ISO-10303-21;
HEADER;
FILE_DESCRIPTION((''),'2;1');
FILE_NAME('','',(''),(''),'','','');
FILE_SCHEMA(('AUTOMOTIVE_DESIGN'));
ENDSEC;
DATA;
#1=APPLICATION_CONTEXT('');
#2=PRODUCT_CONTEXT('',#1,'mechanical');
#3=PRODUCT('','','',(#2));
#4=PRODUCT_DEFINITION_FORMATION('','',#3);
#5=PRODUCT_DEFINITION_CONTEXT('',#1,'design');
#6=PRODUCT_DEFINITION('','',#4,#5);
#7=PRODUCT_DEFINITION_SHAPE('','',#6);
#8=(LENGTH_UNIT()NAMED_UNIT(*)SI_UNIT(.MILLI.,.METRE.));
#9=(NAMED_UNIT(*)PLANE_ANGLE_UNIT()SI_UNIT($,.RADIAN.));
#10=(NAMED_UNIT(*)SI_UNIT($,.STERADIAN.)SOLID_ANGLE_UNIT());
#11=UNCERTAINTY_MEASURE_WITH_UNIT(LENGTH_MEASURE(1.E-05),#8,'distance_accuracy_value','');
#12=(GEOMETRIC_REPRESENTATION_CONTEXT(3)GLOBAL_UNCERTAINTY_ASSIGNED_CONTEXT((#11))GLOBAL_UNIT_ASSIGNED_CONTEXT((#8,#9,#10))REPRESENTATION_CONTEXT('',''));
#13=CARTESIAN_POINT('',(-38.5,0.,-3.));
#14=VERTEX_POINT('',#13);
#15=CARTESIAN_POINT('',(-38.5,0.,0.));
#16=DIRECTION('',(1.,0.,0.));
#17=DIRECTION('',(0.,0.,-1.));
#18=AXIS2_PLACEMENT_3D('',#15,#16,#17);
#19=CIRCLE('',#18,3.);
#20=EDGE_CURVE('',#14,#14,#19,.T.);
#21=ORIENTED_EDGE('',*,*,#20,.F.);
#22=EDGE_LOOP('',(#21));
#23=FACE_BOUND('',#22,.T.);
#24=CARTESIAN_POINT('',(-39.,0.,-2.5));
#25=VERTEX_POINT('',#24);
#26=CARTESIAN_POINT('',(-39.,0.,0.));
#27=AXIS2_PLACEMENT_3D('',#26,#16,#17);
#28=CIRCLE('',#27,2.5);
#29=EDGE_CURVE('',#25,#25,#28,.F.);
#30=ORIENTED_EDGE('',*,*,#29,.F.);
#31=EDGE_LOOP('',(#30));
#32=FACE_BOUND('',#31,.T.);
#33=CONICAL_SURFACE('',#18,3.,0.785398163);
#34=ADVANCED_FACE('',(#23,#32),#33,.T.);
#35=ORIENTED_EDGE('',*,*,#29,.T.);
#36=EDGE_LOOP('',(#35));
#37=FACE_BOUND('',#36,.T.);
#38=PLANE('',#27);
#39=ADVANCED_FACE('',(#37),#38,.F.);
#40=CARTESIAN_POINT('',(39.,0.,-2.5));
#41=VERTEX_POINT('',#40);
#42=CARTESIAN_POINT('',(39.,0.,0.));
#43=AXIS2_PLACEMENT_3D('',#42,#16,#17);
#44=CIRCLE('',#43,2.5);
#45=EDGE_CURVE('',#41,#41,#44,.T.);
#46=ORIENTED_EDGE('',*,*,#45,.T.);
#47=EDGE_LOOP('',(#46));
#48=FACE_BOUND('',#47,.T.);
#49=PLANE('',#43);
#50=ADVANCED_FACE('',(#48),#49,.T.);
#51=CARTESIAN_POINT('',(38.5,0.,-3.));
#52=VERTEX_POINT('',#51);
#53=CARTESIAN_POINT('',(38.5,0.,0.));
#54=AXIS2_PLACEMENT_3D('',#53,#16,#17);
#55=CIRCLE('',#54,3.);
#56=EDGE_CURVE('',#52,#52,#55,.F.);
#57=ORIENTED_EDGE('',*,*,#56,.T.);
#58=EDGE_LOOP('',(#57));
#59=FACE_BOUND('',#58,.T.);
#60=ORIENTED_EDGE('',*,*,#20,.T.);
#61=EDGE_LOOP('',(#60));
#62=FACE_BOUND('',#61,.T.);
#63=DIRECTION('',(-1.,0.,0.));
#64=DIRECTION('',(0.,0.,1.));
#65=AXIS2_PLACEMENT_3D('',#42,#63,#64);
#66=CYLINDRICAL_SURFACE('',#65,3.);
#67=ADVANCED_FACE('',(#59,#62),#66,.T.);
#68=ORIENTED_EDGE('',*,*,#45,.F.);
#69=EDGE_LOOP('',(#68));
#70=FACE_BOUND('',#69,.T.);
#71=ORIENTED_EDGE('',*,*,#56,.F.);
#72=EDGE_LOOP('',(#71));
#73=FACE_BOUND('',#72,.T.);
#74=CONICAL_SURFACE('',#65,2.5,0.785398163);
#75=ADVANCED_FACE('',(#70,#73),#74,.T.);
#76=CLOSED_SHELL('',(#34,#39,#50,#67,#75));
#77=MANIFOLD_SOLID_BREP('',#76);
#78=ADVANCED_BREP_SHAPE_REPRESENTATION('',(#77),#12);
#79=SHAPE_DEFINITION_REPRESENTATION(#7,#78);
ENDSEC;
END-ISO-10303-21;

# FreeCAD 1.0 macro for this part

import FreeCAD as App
import Part
import Sketcher
from FreeCAD import Vector
Q = App.Units.Quantity


def edges_at(feature, points):
    """Names of the edges that pass closest to the given points."""
    edges = feature.Shape.Edges
    near = lambda p: min(range(len(edges)), key=lambda i: edges[i].distToShape(Part.Vertex(*p))[0])
    return sorted({f"Edge{near(p) + 1}" for p in points})

doc = App.newDocument("Part")
body = doc.addObject("PartDesign::Body", "Body")

# Sketch on YZ plane
sketch1 = body.newObject("Sketcher::SketchObject", "Sketch")
sketch1.AttachmentSupport = (doc.getObject("YZ_Plane"), [""])
sketch1.MapMode = "FlatFace"
sketch1.addGeometry(Part.Circle(Vector(0, 0, 0), Vector(0, 0, 1), 3), False)
sketch1.addConstraint(Sketcher.Constraint("Coincident", 0, 3, -1, 1))
sketch1.addConstraint(Sketcher.Constraint("Diameter", 0, Q("6 mm")))
pad1 = body.newObject("PartDesign::Pad", "Pad")
pad1.Profile = sketch1
pad1.Length = 78
pad1.Midplane = True
doc.recompute()

chamfer = body.newObject("PartDesign::Chamfer", "Chamfer")
chamfer.Base = (pad1, edges_at(pad1, [(-39, 0, 3), (39, 0, 3)]))
chamfer.Size = 0.5

doc.recompute()
